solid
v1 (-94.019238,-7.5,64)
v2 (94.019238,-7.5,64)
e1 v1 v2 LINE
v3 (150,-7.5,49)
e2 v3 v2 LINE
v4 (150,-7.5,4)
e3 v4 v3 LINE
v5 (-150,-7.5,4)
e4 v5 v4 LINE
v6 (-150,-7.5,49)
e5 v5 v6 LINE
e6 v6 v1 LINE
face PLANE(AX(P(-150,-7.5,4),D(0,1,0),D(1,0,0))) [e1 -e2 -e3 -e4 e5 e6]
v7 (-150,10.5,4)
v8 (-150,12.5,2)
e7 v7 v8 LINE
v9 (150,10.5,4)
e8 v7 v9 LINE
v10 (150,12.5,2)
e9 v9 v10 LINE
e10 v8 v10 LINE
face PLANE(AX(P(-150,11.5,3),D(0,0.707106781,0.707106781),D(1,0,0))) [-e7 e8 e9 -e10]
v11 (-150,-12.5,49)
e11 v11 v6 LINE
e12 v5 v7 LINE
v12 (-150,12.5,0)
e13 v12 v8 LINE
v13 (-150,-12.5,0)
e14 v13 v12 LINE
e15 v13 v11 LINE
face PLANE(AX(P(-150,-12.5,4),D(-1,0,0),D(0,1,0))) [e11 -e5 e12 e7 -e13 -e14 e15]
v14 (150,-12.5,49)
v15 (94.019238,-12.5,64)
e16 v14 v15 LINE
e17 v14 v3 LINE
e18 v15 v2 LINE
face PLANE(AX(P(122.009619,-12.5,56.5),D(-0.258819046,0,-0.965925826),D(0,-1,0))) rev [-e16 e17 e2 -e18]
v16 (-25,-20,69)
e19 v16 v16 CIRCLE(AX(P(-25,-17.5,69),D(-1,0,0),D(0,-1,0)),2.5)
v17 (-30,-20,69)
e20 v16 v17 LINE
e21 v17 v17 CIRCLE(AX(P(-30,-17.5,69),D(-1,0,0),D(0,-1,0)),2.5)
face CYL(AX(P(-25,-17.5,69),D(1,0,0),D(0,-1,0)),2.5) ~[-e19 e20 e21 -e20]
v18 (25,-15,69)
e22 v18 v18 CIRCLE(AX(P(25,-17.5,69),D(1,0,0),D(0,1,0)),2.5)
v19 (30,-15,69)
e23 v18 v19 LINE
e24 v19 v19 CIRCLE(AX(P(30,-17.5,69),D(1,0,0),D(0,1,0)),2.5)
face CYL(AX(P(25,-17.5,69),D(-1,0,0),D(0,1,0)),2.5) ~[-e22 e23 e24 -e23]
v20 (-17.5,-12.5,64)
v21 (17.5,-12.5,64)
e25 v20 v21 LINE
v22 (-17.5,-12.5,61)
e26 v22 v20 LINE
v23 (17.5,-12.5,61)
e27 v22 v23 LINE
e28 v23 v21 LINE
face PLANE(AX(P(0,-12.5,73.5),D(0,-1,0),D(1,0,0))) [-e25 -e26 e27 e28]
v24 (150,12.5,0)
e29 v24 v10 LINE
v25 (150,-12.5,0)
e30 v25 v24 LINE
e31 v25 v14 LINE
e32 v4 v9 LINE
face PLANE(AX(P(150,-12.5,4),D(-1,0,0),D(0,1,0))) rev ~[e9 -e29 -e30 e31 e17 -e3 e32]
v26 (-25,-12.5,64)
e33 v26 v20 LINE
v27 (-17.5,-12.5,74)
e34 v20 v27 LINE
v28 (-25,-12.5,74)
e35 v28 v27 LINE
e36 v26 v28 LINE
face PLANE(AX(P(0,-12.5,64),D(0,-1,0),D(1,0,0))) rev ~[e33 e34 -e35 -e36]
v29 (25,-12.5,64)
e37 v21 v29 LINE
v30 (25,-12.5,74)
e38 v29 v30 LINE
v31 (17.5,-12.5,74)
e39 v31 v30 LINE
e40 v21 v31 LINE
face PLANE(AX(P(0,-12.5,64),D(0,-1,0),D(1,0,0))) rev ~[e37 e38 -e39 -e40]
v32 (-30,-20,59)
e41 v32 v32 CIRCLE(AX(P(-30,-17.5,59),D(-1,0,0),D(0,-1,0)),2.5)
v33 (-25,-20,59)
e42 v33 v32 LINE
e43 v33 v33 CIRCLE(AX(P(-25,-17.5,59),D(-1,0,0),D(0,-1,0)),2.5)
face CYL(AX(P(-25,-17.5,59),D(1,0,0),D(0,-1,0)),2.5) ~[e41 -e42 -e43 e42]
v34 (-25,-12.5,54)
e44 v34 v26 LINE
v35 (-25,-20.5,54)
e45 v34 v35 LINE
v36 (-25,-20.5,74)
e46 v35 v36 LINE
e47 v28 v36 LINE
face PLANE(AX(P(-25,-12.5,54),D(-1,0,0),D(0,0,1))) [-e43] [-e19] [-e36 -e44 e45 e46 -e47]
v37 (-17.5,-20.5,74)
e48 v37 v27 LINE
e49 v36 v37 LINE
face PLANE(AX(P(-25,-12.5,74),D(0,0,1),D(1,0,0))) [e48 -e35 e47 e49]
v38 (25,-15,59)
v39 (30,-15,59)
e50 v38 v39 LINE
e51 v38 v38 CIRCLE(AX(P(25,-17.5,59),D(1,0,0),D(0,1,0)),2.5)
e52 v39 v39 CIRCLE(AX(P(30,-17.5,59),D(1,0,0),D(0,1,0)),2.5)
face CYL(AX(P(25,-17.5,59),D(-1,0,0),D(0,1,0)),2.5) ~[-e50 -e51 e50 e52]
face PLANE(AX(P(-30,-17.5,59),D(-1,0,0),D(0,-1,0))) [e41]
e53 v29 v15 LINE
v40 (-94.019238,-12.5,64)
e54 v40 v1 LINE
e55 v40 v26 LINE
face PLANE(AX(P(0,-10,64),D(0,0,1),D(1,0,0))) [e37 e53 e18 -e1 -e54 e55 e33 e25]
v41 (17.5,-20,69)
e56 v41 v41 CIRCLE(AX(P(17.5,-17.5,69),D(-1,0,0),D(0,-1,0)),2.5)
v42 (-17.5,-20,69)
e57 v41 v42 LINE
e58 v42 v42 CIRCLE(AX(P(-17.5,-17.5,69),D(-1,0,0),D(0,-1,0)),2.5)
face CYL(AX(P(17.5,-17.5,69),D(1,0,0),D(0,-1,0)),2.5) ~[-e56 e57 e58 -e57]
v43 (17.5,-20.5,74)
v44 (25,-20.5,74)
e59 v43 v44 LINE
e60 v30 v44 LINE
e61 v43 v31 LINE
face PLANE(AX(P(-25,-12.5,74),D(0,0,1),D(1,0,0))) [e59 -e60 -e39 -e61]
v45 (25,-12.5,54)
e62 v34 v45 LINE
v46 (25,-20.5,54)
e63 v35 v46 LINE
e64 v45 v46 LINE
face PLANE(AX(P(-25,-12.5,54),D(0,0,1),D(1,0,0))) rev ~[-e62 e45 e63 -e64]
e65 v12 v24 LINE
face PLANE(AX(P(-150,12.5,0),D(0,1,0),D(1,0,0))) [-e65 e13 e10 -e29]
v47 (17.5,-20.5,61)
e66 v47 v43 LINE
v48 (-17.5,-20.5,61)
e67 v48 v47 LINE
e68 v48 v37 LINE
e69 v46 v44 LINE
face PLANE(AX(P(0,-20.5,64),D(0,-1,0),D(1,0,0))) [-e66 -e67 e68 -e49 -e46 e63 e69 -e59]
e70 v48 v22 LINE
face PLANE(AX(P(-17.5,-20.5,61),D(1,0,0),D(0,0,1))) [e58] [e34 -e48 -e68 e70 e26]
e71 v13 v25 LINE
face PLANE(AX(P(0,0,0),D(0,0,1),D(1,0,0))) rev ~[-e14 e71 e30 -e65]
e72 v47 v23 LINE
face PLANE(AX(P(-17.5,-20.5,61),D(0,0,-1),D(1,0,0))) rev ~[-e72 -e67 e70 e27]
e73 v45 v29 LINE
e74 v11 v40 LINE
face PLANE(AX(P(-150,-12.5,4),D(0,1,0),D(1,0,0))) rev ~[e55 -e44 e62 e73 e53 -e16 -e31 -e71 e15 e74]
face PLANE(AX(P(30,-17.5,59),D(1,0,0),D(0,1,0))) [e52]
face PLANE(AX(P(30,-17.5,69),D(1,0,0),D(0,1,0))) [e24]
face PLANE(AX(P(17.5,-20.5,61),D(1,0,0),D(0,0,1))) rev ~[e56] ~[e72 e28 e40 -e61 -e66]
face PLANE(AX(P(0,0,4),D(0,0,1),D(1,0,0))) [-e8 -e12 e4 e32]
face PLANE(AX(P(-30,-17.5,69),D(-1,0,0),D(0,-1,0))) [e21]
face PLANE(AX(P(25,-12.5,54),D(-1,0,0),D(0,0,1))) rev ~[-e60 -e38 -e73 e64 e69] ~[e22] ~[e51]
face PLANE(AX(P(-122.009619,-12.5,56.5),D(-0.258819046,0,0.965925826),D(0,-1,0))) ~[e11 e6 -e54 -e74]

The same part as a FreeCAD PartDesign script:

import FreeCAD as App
import Part
import Sketcher
from FreeCAD import Vector
Q = App.Units.Quantity


def edges_at(feature, points):
    """Names of the edges that pass closest to the given points."""
    edges = feature.Shape.Edges
    near = lambda p: min(range(len(edges)), key=lambda i: edges[i].distToShape(Part.Vertex(*p))[0])
    return sorted({f"Edge{near(p) + 1}" for p in points})

doc = App.newDocument("Part")
params = doc.addObject("Spreadsheet::Sheet", "Params")
for row, (alias, value) in enumerate([
    ("sketch1_width", "300 mm"),
    ("sketch1_height", "25 mm"),
    ("pad1_length", "4 mm"),
    ("sketch2_width", "300 mm"),
    ("sketch2_height", "5 mm"),
    ("pad2_length", "60 mm"),
    ("chamfer_size", "15 mm"),
    ("chamfer_size2", "55.980762 mm"),
    ("chamfer2_size", "2 mm"),
    ("sketch3_width", "50 mm"),
    ("sketch3_height", "20 mm"),
    ("pad3_length", "8 mm"),
    ("sketch4_diameter", "5 mm"),
    ("pad4_length", "5 mm"),
    ("sketch5_diameter", "5 mm"),
    ("pad5_length", "5 mm"),
    ("sketch6_width", "35 mm"),
    ("sketch6_height", "25 mm"),
    ("pocket1_length", "8 mm"),
    ("sketch7_diameter", "5 mm"),
], start=1):
    params.set(f"A{row}", alias)
    params.set(f"B{row}", "=" + value)
    params.setAlias(f"B{row}", alias)

body = doc.addObject("PartDesign::Body", "Body")

# Sketch on XY plane
sketch1 = doc.addObject("Sketcher::SketchObject", "Sketch")
body.addObject(sketch1)
sketch1.AttachmentSupport = (doc.XY_Plane, [""])
sketch1.MapMode = "FlatFace"
sketch1.addGeometry([
    Part.LineSegment(Vector(-150, 12, 0), Vector(-150, -12, 0)),
    Part.LineSegment(Vector(-150, -12, 0), Vector(150, -12, 0)),
    Part.LineSegment(Vector(150, -12, 0), Vector(150, 12, 0)),
    Part.LineSegment(Vector(150, 12, 0), Vector(-150, 12, 0)),
], False)
sketch1.addConstraint([
    Sketcher.Constraint("Coincident", 0, 2, 1, 1),
    Sketcher.Constraint("Coincident", 1, 2, 2, 1),
    Sketcher.Constraint("Coincident", 2, 2, 3, 1),
    Sketcher.Constraint("Coincident", 3, 2, 0, 1),
    Sketcher.Constraint("Vertical", 0),
    Sketcher.Constraint("Horizontal", 1),
    Sketcher.Constraint("Vertical", 2),
    Sketcher.Constraint("Horizontal", 3),
    Sketcher.Constraint("Symmetric", 0, 2, 2, 2, -1, 1),
    Sketcher.Constraint("DistanceX", 1, 1, 1, 2, Q("300 mm")),
    Sketcher.Constraint("DistanceY", 0, 2, 0, 1, Q("25 mm")),
])
sketch1.setExpression("Constraints[9]", "Params.sketch1_width")
sketch1.setExpression("Constraints[10]", "Params.sketch1_height")
pad1 = doc.addObject("PartDesign::Pad", "Pad")
body.addObject(pad1)
pad1.Profile = sketch1
pad1.setExpression("Length", "Params.pad1_length")

# Sketch on XY plane
sketch2 = doc.addObject("Sketcher::SketchObject", "Sketch001")
body.addObject(sketch2)
sketch2.AttachmentSupport = (doc.XY_Plane, [""])
sketch2.MapMode = "FlatFace"
sketch2.AttachmentOffset = App.Placement(Vector(0, 0, 4), App.Rotation())
sketch2.addGeometry([
    Part.LineSegment(Vector(-150, -8, 0), Vector(-150, -12, 0)),
    Part.LineSegment(Vector(-150, -12, 0), Vector(150, -12, 0)),
    Part.LineSegment(Vector(150, -12, 0), Vector(150, -8, 0)),
    Part.LineSegment(Vector(150, -8, 0), Vector(-150, -8, 0)),
], False)
sketch2.addConstraint([
    Sketcher.Constraint("Coincident", 0, 2, 1, 1),
    Sketcher.Constraint("Coincident", 1, 2, 2, 1),
    Sketcher.Constraint("Coincident", 2, 2, 3, 1),
    Sketcher.Constraint("Coincident", 3, 2, 0, 1),
    Sketcher.Constraint("Vertical", 0),
    Sketcher.Constraint("Horizontal", 1),
    Sketcher.Constraint("Vertical", 2),
    Sketcher.Constraint("Horizontal", 3),
    Sketcher.Constraint("DistanceX", 1, 1, 1, 2, Q("300 mm")),
    Sketcher.Constraint("DistanceY", 0, 2, 0, 1, Q("5 mm")),
    Sketcher.Constraint("DistanceX", 0, 2, -1, 1, Q("150 mm")),
    Sketcher.Constraint("DistanceY", 0, 2, -1, 1, Q("12.5 mm")),
])
sketch2.setExpression("Constraints[8]", "Params.sketch2_width")
sketch2.setExpression("Constraints[9]", "Params.sketch2_height")
pad2 = doc.addObject("PartDesign::Pad", "Pad001")
body.addObject(pad2)
pad2.Profile = sketch2
pad2.setExpression("Length", "Params.pad2_length")
doc.recompute()

chamfer = doc.addObject("PartDesign::Chamfer", "Chamfer")
body.addObject(chamfer)
chamfer.Base = (pad2, edges_at(pad2, [(-150, -10, 64), (150, -10, 64)]))
chamfer.ChamferType = "Two distances"
chamfer.setExpression("Size", "Params.chamfer_size")
chamfer.setExpression("Size2", "Params.chamfer_size2")
chamfer.FlipDirection = True
doc.recompute()

chamfer2 = doc.addObject("PartDesign::Chamfer", "Chamfer001")
body.addObject(chamfer2)
chamfer2.Base = (chamfer, edges_at(chamfer, [(0, 12.5, 4)]))
chamfer2.setExpression("Size", "Params.chamfer2_size")

# Sketch on XZ plane
sketch3 = doc.addObject("Sketcher::SketchObject", "Sketch002")
body.addObject(sketch3)
sketch3.AttachmentSupport = (doc.XZ_Plane, [""])
sketch3.MapMode = "FlatFace"
sketch3.AttachmentOffset = App.Placement(Vector(0, 0, 12.5), App.Rotation())
sketch3.addGeometry([
    Part.LineSegment(Vector(-25, 74, 0), Vector(-25, 54, 0)),
    Part.LineSegment(Vector(-25, 54, 0), Vector(25, 54, 0)),
    Part.LineSegment(Vector(25, 54, 0), Vector(25, 74, 0)),
    Part.LineSegment(Vector(25, 74, 0), Vector(-25, 74, 0)),
], False)
sketch3.addConstraint([
    Sketcher.Constraint("Coincident", 0, 2, 1, 1),
    Sketcher.Constraint("Coincident", 1, 2, 2, 1),
    Sketcher.Constraint("Coincident", 2, 2, 3, 1),
    Sketcher.Constraint("Coincident", 3, 2, 0, 1),
    Sketcher.Constraint("Vertical", 0),
    Sketcher.Constraint("Horizontal", 1),
    Sketcher.Constraint("Vertical", 2),
    Sketcher.Constraint("Horizontal", 3),
    Sketcher.Constraint("DistanceX", 1, 1, 1, 2, Q("50 mm")),
    Sketcher.Constraint("DistanceY", 0, 2, 0, 1, Q("20 mm")),
    Sketcher.Constraint("DistanceX", 0, 2, -1, 1, Q("25 mm")),
    Sketcher.Constraint("DistanceY", -1, 1, 0, 2, Q("54 mm")),
])
sketch3.setExpression("Constraints[8]", "Params.sketch3_width")
sketch3.setExpression("Constraints[9]", "Params.sketch3_height")
pad3 = doc.addObject("PartDesign::Pad", "Pad002")
body.addObject(pad3)
pad3.Profile = sketch3
pad3.setExpression("Length", "Params.pad3_length")

# Sketch on YZ plane
sketch4 = doc.addObject("Sketcher::SketchObject", "Sketch003")
body.addObject(sketch4)
sketch4.AttachmentSupport = (doc.YZ_Plane, [""])
sketch4.MapMode = "FlatFace"
sketch4.AttachmentOffset = App.Placement(Vector(0, 0, -25), App.Rotation())
sketch4.addGeometry([
    Part.Circle(Vector(-17.5, 69, 0), Vector(0, 0, 1), 2.5),
    Part.Circle(Vector(-17.5, 59, 0), Vector(0, 0, 1), 2.5),
], False)
sketch4.addConstraint([
    Sketcher.Constraint("Equal", 0, 1),
    Sketcher.Constraint("Vertical", 0, 3, 1, 3),
    Sketcher.Constraint("Diameter", 0, Q("5 mm")),
    Sketcher.Constraint("DistanceY", -1, 1, 0, 3, Q("69 mm")),
    Sketcher.Constraint("DistanceY", -1, 1, 1, 3, Q("59 mm")),
    Sketcher.Constraint("DistanceX", 0, 3, -1, 1, Q("17.5 mm")),
])
sketch4.setExpression("Constraints[2]", "Params.sketch4_diameter")
pad4 = doc.addObject("PartDesign::Pad", "Pad003")
body.addObject(pad4)
pad4.Profile = sketch4
pad4.setExpression("Length", "Params.pad4_length")
pad4.Reversed = True

# Sketch on YZ plane
sketch5 = doc.addObject("Sketcher::SketchObject", "Sketch004")
body.addObject(sketch5)
sketch5.AttachmentSupport = (doc.YZ_Plane, [""])
sketch5.MapMode = "FlatFace"
sketch5.AttachmentOffset = App.Placement(Vector(0, 0, 25), App.Rotation())
sketch5.addGeometry([
    Part.Circle(Vector(-17.5, 59, 0), Vector(0, 0, 1), 2.5),
    Part.Circle(Vector(-17.5, 69, 0), Vector(0, 0, 1), 2.5),
], False)
sketch5.addConstraint([
    Sketcher.Constraint("Equal", 0, 1),
    Sketcher.Constraint("Vertical", 0, 3, 1, 3),
    Sketcher.Constraint("Diameter", 0, Q("5 mm")),
    Sketcher.Constraint("DistanceY", -1, 1, 0, 3, Q("59 mm")),
    Sketcher.Constraint("DistanceY", -1, 1, 1, 3, Q("69 mm")),
    Sketcher.Constraint("DistanceX", 0, 3, -1, 1, Q("17.5 mm")),
])
sketch5.setExpression("Constraints[2]", "Params.sketch5_diameter")
pad5 = doc.addObject("PartDesign::Pad", "Pad004")
body.addObject(pad5)
pad5.Profile = sketch5
pad5.setExpression("Length", "Params.pad5_length")

# Sketch on XZ plane
sketch6 = doc.addObject("Sketcher::SketchObject", "Sketch005")
body.addObject(sketch6)
sketch6.AttachmentSupport = (doc.XZ_Plane, [""])
sketch6.MapMode = "FlatFace"
sketch6.AttachmentOffset = App.Placement(Vector(0, 0, 20.5), App.Rotation())
sketch6.addGeometry([
    Part.LineSegment(Vector(-18, 86, 0), Vector(-18, 61, 0)),
    Part.LineSegment(Vector(-18, 61, 0), Vector(18, 61, 0)),
    Part.LineSegment(Vector(18, 61, 0), Vector(18, 86, 0)),
    Part.LineSegment(Vector(18, 86, 0), Vector(-18, 86, 0)),
], False)
sketch6.addConstraint([
    Sketcher.Constraint("Coincident", 0, 2, 1, 1),
    Sketcher.Constraint("Coincident", 1, 2, 2, 1),
    Sketcher.Constraint("Coincident", 2, 2, 3, 1),
    Sketcher.Constraint("Coincident", 3, 2, 0, 1),
    Sketcher.Constraint("Vertical", 0),
    Sketcher.Constraint("Horizontal", 1),
    Sketcher.Constraint("Vertical", 2),
    Sketcher.Constraint("Horizontal", 3),
    Sketcher.Constraint("DistanceX", 1, 1, 1, 2, Q("35 mm")),
    Sketcher.Constraint("DistanceY", 0, 2, 0, 1, Q("25 mm")),
    Sketcher.Constraint("DistanceY", -1, 1, 0, 2, Q("61 mm")),
    Sketcher.Constraint("DistanceX", 0, 2, -1, 1, Q("17.5 mm")),
])
sketch6.setExpression("Constraints[8]", "Params.sketch6_width")
sketch6.setExpression("Constraints[9]", "Params.sketch6_height")
pocket1 = doc.addObject("PartDesign::Pocket", "Pocket")
body.addObject(pocket1)
pocket1.Profile = sketch6
pocket1.setExpression("Length", "Params.pocket1_length")

# Sketch on YZ plane
sketch7 = doc.addObject("Sketcher::SketchObject", "Sketch006")
body.addObject(sketch7)
sketch7.AttachmentSupport = (doc.YZ_Plane, [""])
sketch7.MapMode = "FlatFace"
sketch7.AttachmentOffset = App.Placement(Vector(0, 0, 17.5), App.Rotation())
sketch7.addGeometry(Part.Circle(Vector(-17.5, 69, 0), Vector(0, 0, 1), 2.5), False)
sketch7.addConstraint([
    Sketcher.Constraint("Diameter", 0, Q("5 mm")),
    Sketcher.Constraint("DistanceY", -1, 1, 0, 3, Q("69 mm")),
    Sketcher.Constraint("DistanceX", 0, 3, -1, 1, Q("17.5 mm")),
])
sketch7.setExpression("Constraints[0]", "Params.sketch7_diameter")
pad6 = doc.addObject("PartDesign::Pad", "Pad005")
body.addObject(pad6)
pad6.Profile = sketch7
pad6.Type = "UpToLast"
pad6.Reversed = True

doc.recompute()
